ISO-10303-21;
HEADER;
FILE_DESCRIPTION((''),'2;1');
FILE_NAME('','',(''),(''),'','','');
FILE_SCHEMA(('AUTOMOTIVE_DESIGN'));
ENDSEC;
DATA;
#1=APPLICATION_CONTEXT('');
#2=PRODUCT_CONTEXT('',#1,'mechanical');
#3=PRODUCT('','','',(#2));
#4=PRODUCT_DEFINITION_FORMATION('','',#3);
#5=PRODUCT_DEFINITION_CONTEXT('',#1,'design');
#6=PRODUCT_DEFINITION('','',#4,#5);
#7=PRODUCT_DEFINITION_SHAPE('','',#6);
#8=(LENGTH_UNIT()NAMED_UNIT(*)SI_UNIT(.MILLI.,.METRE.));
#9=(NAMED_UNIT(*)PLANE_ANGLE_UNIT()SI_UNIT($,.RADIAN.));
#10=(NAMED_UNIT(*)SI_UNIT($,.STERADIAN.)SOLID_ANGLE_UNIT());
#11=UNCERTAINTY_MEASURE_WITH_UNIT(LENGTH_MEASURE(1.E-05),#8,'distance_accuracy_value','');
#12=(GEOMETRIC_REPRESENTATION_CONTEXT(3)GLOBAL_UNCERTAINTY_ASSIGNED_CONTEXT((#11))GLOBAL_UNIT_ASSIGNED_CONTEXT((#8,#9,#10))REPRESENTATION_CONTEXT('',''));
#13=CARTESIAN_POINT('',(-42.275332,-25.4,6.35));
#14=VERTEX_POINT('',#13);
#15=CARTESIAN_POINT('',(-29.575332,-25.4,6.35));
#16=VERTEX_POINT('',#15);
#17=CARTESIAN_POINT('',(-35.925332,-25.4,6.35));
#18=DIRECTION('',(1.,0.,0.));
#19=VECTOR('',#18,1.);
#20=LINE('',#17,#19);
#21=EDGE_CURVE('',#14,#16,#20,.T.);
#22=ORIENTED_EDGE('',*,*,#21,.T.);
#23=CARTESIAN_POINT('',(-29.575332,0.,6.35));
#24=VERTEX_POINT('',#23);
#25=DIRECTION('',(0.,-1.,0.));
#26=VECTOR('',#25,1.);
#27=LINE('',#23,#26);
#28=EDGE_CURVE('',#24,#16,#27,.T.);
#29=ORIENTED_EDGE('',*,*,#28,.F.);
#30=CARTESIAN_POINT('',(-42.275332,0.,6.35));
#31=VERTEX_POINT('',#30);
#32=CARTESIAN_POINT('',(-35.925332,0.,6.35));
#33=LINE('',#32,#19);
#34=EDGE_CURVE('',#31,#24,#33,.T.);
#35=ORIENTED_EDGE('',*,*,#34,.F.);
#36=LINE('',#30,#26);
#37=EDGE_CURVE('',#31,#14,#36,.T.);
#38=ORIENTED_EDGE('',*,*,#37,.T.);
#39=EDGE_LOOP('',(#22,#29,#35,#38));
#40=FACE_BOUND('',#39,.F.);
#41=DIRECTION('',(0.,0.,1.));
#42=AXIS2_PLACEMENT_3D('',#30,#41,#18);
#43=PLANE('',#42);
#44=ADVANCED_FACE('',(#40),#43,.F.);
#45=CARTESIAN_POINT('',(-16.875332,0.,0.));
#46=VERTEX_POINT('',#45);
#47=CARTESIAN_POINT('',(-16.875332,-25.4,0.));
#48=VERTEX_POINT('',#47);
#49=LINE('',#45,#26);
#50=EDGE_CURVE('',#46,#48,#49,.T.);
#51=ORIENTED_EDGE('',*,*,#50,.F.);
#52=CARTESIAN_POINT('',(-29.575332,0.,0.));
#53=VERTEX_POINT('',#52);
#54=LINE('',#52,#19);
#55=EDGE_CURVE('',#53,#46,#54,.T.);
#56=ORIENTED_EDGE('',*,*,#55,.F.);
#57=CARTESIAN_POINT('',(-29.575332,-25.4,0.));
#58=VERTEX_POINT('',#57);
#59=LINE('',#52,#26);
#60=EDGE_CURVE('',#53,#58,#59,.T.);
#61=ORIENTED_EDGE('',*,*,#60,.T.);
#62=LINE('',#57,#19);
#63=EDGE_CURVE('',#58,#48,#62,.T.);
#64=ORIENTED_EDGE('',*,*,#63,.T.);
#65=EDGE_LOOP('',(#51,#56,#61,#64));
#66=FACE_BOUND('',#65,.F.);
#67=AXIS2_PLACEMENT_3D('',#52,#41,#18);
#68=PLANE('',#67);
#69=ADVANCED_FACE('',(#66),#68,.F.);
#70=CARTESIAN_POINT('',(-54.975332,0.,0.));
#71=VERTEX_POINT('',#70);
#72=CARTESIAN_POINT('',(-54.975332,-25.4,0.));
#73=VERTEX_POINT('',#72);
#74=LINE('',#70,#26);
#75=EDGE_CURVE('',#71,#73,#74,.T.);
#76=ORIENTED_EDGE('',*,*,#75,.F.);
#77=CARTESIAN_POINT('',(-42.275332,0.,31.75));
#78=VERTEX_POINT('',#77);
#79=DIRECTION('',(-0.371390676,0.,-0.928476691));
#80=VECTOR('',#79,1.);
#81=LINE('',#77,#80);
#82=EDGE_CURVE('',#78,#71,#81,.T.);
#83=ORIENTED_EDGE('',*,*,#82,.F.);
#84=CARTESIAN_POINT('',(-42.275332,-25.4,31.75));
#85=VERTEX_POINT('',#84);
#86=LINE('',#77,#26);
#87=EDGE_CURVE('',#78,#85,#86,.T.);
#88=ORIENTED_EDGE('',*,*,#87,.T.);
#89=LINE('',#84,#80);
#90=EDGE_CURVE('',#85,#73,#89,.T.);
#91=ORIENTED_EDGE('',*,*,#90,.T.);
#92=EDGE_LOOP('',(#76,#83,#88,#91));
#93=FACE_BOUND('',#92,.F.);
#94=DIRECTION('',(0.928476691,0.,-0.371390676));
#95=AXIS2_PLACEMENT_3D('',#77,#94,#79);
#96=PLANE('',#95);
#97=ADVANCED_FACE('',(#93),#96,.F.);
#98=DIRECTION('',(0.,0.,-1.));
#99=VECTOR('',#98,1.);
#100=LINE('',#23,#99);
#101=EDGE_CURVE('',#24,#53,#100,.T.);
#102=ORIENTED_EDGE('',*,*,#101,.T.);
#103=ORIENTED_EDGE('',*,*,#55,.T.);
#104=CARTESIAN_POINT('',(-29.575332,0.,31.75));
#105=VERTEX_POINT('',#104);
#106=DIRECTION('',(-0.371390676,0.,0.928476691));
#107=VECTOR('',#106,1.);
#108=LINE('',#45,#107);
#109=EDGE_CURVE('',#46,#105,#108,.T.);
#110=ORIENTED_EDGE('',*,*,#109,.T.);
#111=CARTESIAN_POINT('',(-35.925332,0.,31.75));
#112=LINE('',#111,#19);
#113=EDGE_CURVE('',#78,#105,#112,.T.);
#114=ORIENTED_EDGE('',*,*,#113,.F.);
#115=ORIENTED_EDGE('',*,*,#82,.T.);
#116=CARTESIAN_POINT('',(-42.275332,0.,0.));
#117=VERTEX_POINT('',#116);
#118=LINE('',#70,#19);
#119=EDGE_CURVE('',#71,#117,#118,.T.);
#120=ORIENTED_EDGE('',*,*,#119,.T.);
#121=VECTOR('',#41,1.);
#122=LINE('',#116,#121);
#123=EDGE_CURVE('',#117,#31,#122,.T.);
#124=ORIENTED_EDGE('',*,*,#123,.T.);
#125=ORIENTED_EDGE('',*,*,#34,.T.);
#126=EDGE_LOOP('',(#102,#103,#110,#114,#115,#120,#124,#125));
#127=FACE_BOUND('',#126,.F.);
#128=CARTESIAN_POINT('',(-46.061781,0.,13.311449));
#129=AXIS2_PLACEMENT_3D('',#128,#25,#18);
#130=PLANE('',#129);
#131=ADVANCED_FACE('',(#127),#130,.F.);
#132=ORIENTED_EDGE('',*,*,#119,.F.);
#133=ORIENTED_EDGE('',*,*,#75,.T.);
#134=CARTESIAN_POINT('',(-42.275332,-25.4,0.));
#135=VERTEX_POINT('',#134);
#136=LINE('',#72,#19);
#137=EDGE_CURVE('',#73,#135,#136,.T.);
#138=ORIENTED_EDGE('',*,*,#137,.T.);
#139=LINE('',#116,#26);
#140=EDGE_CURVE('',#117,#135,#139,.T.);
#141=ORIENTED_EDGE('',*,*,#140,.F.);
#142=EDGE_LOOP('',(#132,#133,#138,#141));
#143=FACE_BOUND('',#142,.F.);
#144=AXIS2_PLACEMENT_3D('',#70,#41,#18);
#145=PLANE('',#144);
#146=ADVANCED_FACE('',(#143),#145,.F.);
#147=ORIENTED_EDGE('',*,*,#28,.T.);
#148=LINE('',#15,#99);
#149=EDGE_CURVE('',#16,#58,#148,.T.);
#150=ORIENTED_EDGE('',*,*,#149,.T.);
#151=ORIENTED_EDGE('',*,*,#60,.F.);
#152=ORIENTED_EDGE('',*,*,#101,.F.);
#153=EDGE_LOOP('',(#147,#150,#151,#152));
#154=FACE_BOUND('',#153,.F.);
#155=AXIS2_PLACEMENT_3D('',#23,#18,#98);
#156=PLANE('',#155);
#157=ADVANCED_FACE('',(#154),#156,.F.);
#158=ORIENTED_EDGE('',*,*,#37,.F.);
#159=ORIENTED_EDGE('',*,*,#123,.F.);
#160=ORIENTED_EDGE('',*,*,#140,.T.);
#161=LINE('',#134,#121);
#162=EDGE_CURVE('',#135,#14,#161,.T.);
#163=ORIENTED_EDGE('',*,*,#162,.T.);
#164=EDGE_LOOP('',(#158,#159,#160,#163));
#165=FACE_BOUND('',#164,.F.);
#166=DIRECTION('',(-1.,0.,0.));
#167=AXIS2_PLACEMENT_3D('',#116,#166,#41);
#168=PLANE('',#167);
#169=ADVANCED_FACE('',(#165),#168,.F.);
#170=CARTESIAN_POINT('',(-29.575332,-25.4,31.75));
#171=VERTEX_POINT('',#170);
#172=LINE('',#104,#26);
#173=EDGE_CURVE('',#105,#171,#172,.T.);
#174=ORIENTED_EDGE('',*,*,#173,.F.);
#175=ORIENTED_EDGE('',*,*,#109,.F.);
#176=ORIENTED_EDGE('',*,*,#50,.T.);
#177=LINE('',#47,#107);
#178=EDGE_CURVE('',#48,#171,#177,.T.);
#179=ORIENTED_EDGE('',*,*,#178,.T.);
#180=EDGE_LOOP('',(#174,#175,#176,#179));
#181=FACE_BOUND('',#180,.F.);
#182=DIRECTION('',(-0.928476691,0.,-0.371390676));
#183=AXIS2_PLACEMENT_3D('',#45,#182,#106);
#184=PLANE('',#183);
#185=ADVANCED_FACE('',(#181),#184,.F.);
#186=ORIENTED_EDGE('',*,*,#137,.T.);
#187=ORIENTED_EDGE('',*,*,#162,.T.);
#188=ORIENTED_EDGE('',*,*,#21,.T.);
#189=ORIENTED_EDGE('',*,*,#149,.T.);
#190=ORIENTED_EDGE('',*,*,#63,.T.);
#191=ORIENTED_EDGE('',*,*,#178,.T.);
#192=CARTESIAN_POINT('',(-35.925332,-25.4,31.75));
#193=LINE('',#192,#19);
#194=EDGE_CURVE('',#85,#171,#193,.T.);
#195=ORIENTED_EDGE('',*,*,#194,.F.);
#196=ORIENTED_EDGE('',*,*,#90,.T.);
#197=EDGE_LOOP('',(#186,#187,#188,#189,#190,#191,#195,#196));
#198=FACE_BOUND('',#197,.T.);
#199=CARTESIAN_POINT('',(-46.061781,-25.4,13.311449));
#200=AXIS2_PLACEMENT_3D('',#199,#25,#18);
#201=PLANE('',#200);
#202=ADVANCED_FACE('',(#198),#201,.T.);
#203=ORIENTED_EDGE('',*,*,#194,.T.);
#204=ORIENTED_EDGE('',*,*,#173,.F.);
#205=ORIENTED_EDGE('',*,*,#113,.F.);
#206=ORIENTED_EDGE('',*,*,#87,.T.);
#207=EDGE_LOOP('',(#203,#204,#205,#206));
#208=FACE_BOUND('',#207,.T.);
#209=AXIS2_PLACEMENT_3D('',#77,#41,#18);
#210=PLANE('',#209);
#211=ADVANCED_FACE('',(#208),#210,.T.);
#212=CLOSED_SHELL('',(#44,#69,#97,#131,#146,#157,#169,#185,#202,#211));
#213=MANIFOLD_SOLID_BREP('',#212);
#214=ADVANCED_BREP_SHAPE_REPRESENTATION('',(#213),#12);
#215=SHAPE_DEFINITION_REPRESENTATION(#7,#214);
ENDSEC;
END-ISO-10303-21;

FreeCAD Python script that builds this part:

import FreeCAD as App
import Part
import Sketcher
from FreeCAD import Vector
Q = App.Units.Quantity


def add_polygon(sketch, points):
    """Adds a closed chain of lines whose ends are joined by coincident constraints."""
    first, n = sketch.GeometryCount, len(points)
    for a, b in zip(points, points[1:] + points[:1]):
        sketch.addGeometry(Part.LineSegment(App.Vector(*a, 0), App.Vector(*b, 0)), False)
    for i in range(n):
        sketch.addConstraint(Sketcher.Constraint("Coincident", first + i, 2, first + (i + 1) % n, 1))

doc = App.newDocument("Part")
body = doc.addObject("PartDesign::Body", "Body")

sketch1 = body.newObject("Sketcher::SketchObject", "Sketch")
sketch1.AttachmentSupport = (doc.getObject("XZ_Plane"), [""])
sketch1.MapMode = "FlatFace"
add_polygon(sketch1, [(-42.275332, 31.75), (-54.975332, 0), (-42.275332, 0), (-42.275332, 6.35), (-29.575332, 6.35), (-29.575332, 0), (-16.875332, 0), (-29.575332, 31.75)])
sketch1.addConstraint(Sketcher.Constraint("Horizontal", 1))
sketch1.addConstraint(Sketcher.Constraint("Vertical", 2))
sketch1.addConstraint(Sketcher.Constraint("Horizontal", 3))
sketch1.addConstraint(Sketcher.Constraint("Vertical", 4))
sketch1.addConstraint(Sketcher.Constraint("Horizontal", 5))
sketch1.addConstraint(Sketcher.Constraint("Horizontal", 7))
sketch1.addConstraint(Sketcher.Constraint("PointOnObject", 0, 2, -1))
sketch1.addConstraint(Sketcher.Constraint("PointOnObject", 4, 2, -1))
sketch1.addConstraint(Sketcher.Constraint("Vertical", 4, 2, 6, 2))
sketch1.addConstraint(Sketcher.Constraint("Vertical", 2, 2, 7, 2))
sketch1.addConstraint(Sketcher.Constraint("Equal", 1, 3))
sketch1.addConstraint(Sketcher.Constraint("Equal", 3, 5))
sketch1.addConstraint(Sketcher.Constraint("DistanceX", 1, 1, 1, 2, Q("0.5 in")))
sketch1.addConstraint(Sketcher.Constraint("DistanceY", 3, 2, 6, 2, Q("1 in")))
sketch1.addConstraint(Sketcher.Constraint("DistanceY", 2, 1, 2, 2, Q("0.25 in")))
sketch1.addConstraint(Sketcher.Constraint("DistanceX", 3, 2, -1, 1, Q("29.575332 mm")))
pad1 = body.newObject("PartDesign::Pad", "Pad")
pad1.Profile = sketch1
pad1.Length = Q("1 in")

doc.recompute()
